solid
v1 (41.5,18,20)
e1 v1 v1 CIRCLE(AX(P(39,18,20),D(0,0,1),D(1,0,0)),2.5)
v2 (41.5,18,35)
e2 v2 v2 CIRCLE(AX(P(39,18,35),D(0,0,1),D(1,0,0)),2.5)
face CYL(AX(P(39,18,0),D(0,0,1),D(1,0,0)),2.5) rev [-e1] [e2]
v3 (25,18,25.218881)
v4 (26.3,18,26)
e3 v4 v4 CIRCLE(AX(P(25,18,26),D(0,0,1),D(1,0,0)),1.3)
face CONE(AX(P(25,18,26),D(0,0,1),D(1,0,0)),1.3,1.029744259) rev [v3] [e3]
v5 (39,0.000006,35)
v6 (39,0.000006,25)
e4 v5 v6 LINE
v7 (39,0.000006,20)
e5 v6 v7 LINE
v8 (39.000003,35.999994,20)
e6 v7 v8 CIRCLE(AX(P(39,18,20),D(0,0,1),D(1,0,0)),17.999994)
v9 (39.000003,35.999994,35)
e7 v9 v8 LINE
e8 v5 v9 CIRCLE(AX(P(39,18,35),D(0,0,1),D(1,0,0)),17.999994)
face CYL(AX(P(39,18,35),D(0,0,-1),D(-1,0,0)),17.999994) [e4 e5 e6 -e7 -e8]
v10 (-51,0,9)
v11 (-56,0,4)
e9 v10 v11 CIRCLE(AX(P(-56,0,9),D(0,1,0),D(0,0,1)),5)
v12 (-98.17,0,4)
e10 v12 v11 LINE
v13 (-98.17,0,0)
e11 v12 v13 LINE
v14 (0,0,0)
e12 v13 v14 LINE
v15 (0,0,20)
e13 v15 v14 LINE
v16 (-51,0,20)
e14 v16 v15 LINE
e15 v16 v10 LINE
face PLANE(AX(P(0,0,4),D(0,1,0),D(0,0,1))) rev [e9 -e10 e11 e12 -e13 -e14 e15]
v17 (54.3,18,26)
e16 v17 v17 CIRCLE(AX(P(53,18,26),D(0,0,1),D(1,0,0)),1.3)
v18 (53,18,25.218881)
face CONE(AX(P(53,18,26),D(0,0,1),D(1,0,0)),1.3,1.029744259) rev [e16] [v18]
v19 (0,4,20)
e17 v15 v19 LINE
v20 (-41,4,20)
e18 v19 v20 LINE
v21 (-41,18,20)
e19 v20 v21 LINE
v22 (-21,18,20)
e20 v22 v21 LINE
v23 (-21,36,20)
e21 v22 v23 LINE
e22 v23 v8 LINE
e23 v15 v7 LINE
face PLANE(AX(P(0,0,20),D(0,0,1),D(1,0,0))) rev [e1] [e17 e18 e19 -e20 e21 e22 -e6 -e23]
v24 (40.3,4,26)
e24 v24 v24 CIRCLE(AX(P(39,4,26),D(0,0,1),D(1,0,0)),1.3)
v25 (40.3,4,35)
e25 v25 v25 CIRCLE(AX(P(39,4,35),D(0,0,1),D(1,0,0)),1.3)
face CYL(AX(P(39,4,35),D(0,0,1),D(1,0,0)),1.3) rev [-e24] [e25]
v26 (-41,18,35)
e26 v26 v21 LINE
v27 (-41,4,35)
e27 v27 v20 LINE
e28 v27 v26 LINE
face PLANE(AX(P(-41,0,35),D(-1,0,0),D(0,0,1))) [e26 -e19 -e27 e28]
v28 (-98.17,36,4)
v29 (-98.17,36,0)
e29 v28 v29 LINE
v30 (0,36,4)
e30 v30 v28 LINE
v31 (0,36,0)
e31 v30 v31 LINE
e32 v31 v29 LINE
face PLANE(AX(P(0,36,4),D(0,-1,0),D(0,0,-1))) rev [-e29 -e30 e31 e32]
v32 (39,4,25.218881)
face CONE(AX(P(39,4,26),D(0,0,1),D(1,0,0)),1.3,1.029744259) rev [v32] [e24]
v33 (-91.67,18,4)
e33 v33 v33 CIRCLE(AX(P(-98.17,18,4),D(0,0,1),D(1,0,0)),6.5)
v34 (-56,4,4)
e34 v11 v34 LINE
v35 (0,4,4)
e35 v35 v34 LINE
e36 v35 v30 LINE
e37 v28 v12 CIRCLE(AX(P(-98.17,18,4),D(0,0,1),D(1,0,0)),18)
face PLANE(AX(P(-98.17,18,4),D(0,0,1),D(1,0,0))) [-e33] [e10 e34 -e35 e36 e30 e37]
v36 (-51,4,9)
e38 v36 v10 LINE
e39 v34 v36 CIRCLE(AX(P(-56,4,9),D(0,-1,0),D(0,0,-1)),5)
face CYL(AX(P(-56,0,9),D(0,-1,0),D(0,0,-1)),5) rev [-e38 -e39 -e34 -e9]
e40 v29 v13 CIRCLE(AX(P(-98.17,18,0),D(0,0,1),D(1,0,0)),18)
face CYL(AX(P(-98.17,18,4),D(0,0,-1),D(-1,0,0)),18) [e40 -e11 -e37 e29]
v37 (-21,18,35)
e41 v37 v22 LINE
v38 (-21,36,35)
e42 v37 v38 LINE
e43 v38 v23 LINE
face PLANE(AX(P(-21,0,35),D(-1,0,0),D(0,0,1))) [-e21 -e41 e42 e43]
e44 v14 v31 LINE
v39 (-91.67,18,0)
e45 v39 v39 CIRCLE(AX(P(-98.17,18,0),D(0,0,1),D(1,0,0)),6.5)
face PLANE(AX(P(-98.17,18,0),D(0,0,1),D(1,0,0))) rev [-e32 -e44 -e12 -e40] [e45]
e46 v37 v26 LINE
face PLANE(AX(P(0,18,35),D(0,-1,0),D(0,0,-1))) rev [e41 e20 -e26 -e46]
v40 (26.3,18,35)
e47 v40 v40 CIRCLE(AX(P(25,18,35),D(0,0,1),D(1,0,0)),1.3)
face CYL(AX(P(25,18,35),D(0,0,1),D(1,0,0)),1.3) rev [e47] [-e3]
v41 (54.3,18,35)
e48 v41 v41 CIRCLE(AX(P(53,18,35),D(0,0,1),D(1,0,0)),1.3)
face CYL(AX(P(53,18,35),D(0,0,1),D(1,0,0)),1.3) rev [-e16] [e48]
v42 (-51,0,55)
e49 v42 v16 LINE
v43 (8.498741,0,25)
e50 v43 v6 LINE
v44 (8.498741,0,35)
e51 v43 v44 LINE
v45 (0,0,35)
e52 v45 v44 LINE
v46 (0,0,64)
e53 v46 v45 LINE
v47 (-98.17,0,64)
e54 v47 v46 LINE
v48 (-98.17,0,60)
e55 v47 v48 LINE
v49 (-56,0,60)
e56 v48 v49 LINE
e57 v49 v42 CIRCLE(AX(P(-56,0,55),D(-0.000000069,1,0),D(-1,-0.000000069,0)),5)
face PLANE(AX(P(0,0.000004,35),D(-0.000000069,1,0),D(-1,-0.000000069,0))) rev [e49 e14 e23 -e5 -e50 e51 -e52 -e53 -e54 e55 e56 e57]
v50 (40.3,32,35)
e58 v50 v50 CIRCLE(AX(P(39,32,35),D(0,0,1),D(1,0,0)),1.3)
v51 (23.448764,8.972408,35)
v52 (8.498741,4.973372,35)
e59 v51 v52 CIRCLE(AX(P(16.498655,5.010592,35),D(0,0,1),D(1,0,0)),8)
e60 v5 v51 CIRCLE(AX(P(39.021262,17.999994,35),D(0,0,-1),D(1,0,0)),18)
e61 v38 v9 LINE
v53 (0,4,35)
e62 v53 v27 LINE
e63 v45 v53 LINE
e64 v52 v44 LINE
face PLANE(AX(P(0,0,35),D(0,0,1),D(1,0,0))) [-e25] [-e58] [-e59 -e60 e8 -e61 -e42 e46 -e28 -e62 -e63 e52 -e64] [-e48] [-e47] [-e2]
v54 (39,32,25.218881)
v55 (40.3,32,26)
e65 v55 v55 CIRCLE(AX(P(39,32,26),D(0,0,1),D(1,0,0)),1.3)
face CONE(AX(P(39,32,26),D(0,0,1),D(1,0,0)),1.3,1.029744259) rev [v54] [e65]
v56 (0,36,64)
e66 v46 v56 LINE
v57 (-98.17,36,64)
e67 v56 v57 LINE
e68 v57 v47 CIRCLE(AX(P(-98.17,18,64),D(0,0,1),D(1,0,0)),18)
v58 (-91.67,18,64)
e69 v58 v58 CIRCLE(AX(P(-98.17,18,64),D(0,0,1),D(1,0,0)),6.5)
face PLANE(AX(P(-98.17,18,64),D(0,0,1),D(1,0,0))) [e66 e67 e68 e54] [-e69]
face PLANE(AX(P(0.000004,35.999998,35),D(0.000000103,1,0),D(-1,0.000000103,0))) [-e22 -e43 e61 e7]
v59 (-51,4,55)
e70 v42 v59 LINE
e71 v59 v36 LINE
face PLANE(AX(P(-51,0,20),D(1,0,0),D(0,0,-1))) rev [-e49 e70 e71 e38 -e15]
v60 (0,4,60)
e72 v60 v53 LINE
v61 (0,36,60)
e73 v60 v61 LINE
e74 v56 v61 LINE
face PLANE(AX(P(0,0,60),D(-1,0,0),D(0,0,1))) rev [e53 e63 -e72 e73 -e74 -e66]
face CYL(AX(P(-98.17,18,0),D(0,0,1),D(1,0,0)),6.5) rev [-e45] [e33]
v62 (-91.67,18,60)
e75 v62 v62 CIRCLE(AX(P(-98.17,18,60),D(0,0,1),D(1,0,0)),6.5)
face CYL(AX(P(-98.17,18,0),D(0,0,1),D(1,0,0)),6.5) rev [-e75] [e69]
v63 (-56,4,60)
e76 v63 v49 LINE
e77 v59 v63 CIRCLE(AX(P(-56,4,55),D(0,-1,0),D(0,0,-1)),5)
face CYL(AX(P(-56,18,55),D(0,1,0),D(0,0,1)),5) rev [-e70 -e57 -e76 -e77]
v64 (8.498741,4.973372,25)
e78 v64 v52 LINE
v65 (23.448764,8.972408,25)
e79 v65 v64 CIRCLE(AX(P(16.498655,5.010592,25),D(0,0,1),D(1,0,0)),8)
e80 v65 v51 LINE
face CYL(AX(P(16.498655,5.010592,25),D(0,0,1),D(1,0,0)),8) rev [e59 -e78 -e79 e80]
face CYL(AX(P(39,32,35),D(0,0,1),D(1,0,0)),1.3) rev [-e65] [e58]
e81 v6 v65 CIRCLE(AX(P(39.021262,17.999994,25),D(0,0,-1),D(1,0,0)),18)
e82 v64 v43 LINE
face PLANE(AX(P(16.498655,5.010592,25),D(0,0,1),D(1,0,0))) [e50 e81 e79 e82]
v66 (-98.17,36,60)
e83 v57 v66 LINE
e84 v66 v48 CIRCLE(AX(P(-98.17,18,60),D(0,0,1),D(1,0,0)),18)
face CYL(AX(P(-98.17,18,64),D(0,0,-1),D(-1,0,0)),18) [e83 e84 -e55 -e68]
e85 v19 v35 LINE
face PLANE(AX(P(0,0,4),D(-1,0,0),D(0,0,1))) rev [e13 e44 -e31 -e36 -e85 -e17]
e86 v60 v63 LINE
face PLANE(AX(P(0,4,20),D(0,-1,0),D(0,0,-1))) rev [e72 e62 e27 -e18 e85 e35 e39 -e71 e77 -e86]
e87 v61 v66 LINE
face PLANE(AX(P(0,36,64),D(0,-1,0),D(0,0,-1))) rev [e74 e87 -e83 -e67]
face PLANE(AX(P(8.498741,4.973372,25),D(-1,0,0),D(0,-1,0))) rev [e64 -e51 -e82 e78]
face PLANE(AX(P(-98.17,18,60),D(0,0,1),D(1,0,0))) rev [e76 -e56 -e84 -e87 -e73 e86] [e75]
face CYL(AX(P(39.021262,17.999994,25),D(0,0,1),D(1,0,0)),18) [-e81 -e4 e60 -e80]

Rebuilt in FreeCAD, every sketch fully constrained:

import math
import FreeCAD as App
import Part
import Sketcher

V = App.Vector
Q = App.Units.Quantity


def edges_at(feature, points):
    """Names of the edges that pass closest to the given points."""
    edges = feature.Shape.Edges
    near = lambda p: min(range(len(edges)), key=lambda i: edges[i].distToShape(Part.Vertex(*p))[0])
    return sorted({f"Edge{near(p) + 1}" for p in points})


def add_polygon(sketch, points):
    """Adds a closed chain of lines whose ends are joined by coincident constraints."""
    first, n = sketch.GeometryCount, len(points)
    for a, b in zip(points, points[1:] + points[:1]):
        sketch.addGeometry(Part.LineSegment(App.Vector(*a, 0), App.Vector(*b, 0)), False)
    for i in range(n):
        sketch.addConstraint(Sketcher.Constraint("Coincident", first + i, 2, first + (i + 1) % n, 1))

doc = App.newDocument("Part")
body = doc.addObject("PartDesign::Body", "Body")

sketch1 = doc.addObject("Sketcher::SketchObject", "Sketch")
body.addObject(sketch1)
sketch1.AttachmentSupport = (doc.XY_Plane, [""])
sketch1.MapMode = "FlatFace"
sketch1.addGeometry(Part.LineSegment(V(-98.17, 0, 0), V(0, 0, 0)), False)
sketch1.addGeometry(Part.LineSegment(V(0, 0, 0), V(0, 36, 0)), False)
sketch1.addGeometry(Part.LineSegment(V(0, 36, 0), V(-98.17, 36, 0)), False)
sketch1.addGeometry(Part.ArcOfCircle(Part.Circle(V(-98.17, 18, 0), V(0, 0, 1), 18), math.radians(90), math.radians(270)), False)
sketch1.addConstraint(Sketcher.Constraint("Coincident", 0, 2, 1, 1))
sketch1.addConstraint(Sketcher.Constraint("Coincident", 1, 2, 2, 1))
sketch1.addConstraint(Sketcher.Constraint("Tangent", 2, 2, 3, 1))
sketch1.addConstraint(Sketcher.Constraint("Tangent", 3, 2, 0, 1))
sketch1.addConstraint(Sketcher.Constraint("Horizontal", 0))
sketch1.addConstraint(Sketcher.Constraint("Vertical", 1))
sketch1.addConstraint(Sketcher.Constraint("Horizontal", 2))
sketch1.addConstraint(Sketcher.Constraint("Coincident", 0, 2, -1, 1))
sketch1.addConstraint(Sketcher.Constraint("Radius", 3, Q("18 mm")))
sketch1.addConstraint(Sketcher.Constraint("DistanceX", 0, 1, 0, 2, Q("98.17 mm")))
pad1 = doc.addObject("PartDesign::Pad", "Pad")
body.addObject(pad1)
pad1.Profile = sketch1
pad1.Length = 4

sketch2 = doc.addObject("Sketcher::SketchObject", "Sketch001")
body.addObject(sketch2)
sketch2.AttachmentSupport = (doc.XY_Plane, [""])
sketch2.MapMode = "FlatFace"
sketch2.AttachmentOffset = App.Placement(V(0, 0, 4), App.Rotation())
add_polygon(sketch2, [(-51, 4), (-51, 0), (0, 0), (0, 4)])
sketch2.addConstraint(Sketcher.Constraint("Vertical", 0))
sketch2.addConstraint(Sketcher.Constraint("Horizontal", 1))
sketch2.addConstraint(Sketcher.Constraint("Vertical", 2))
sketch2.addConstraint(Sketcher.Constraint("Horizontal", 3))
sketch2.addConstraint(Sketcher.Constraint("Coincident", 1, 2, -1, 1))
sketch2.addConstraint(Sketcher.Constraint("DistanceX", 1, 1, 1, 2, Q("51 mm")))
sketch2.addConstraint(Sketcher.Constraint("DistanceY", 0, 2, 0, 1, Q("4 mm")))
pad2 = doc.addObject("PartDesign::Pad", "Pad001")
body.addObject(pad2)
pad2.Profile = sketch2
pad2.Length = 16

sketch3 = doc.addObject("Sketcher::SketchObject", "Sketch002")
body.addObject(sketch3)
sketch3.AttachmentSupport = (doc.XY_Plane, [""])
sketch3.MapMode = "FlatFace"
sketch3.AttachmentOffset = App.Placement(V(0, 0, 20), App.Rotation())
sketch3.addGeometry(Part.LineSegment(V(-51, 4, 0), V(-51, 0, 0)), False)
sketch3.addGeometry(Part.LineSegment(V(-51, 0, 0), V(39, 0.000006, 0)), False)
sketch3.addGeometry(Part.ArcOfCircle(Part.Circle(V(39, 18, 0), V(0, 0, 1), 17.999994), math.radians(-90), math.radians(89.999991)), False)
sketch3.addGeometry(Part.LineSegment(V(39.000003, 35.999994, 0), V(-21, 36, 0)), False)
sketch3.addGeometry(Part.LineSegment(V(-21, 36, 0), V(-21, 18, 0)), False)
sketch3.addGeometry(Part.LineSegment(V(-21, 18, 0), V(-41, 18, 0)), False)
sketch3.addGeometry(Part.LineSegment(V(-41, 18, 0), V(-41, 4, 0)), False)
sketch3.addGeometry(Part.LineSegment(V(-41, 4, 0), V(-51, 4, 0)), False)
sketch3.addConstraint(Sketcher.Constraint("Coincident", 0, 2, 1, 1))
sketch3.addConstraint(Sketcher.Constraint("Tangent", 1, 2, 2, 1))
sketch3.addConstraint(Sketcher.Constraint("Tangent", 2, 2, 3, 1))
sketch3.addConstraint(Sketcher.Constraint("Coincident", 3, 2, 4, 1))
sketch3.addConstraint(Sketcher.Constraint("Coincident", 4, 2, 5, 1))
sketch3.addConstraint(Sketcher.Constraint("Coincident", 5, 2, 6, 1))
sketch3.addConstraint(Sketcher.Constraint("Coincident", 6, 2, 7, 1))
sketch3.addConstraint(Sketcher.Constraint("Coincident", 7, 2, 0, 1))
sketch3.addConstraint(Sketcher.Constraint("Vertical", 0))
sketch3.addConstraint(Sketcher.Constraint("Vertical", 4))
sketch3.addConstraint(Sketcher.Constraint("Horizontal", 5))
sketch3.addConstraint(Sketcher.Constraint("Vertical", 6))
sketch3.addConstraint(Sketcher.Constraint("Horizontal", 7))
sketch3.addConstraint(Sketcher.Constraint("PointOnObject", 0, 2, -1))
sketch3.addConstraint(Sketcher.Constraint("Parallel", 1, 3))
sketch3.addConstraint(Sketcher.Constraint("Horizontal", 2, 3, 4, 2))
sketch3.addConstraint(Sketcher.Constraint("Vertical", 2, 3, 1, 2))
sketch3.addConstraint(Sketcher.Constraint("DistanceX", 5, 2, 5, 1, Q("20 mm")))
sketch3.addConstraint(Sketcher.Constraint("DistanceX", 7, 2, 7, 1, Q("10 mm")))
sketch3.addConstraint(Sketcher.Constraint("DistanceY", 0, 2, 0, 1, Q("4 mm")))
sketch3.addConstraint(Sketcher.Constraint("DistanceY", 4, 2, 4, 1, Q("18 mm")))
sketch3.addConstraint(Sketcher.Constraint("Distance", 1, Q("90 mm")))
sketch3.addConstraint(Sketcher.Constraint("DistanceX", -1, 1, 2, 3, Q("39 mm")))
pad3 = doc.addObject("PartDesign::Pad", "Pad002")
body.addObject(pad3)
pad3.Profile = sketch3
pad3.Length = 15

sketch4 = doc.addObject("Sketcher::SketchObject", "Sketch003")
body.addObject(sketch4)
sketch4.AttachmentSupport = (doc.XY_Plane, [""])
sketch4.MapMode = "FlatFace"
sketch4.AttachmentOffset = App.Placement(V(0, 0, 35), App.Rotation())
add_polygon(sketch4, [(-51, 4), (-51, 0), (0, 0), (0, 4)])
sketch4.addConstraint(Sketcher.Constraint("Vertical", 0))
sketch4.addConstraint(Sketcher.Constraint("Horizontal", 1))
sketch4.addConstraint(Sketcher.Constraint("Vertical", 2))
sketch4.addConstraint(Sketcher.Constraint("Horizontal", 3))
sketch4.addConstraint(Sketcher.Constraint("Coincident", 1, 2, -1, 1))
sketch4.addConstraint(Sketcher.Constraint("DistanceX", 1, 1, 1, 2, Q("51 mm")))
sketch4.addConstraint(Sketcher.Constraint("DistanceY", 0, 2, 0, 1, Q("4 mm")))
pad4 = doc.addObject("PartDesign::Pad", "Pad003")
body.addObject(pad4)
pad4.Profile = sketch4
pad4.Length = 25

sketch5 = doc.addObject("Sketcher::SketchObject", "Sketch004")
body.addObject(sketch5)
sketch5.AttachmentSupport = (doc.XY_Plane, [""])
sketch5.MapMode = "FlatFace"
sketch5.AttachmentOffset = App.Placement(V(0, 0, 60), App.Rotation())
sketch5.addGeometry(Part.LineSegment(V(-98.17, 0, 0), V(0, 0, 0)), False)
sketch5.addGeometry(Part.LineSegment(V(0, 0, 0), V(0, 36, 0)), False)
sketch5.addGeometry(Part.LineSegment(V(0, 36, 0), V(-98.17, 36, 0)), False)
sketch5.addGeometry(Part.ArcOfCircle(Part.Circle(V(-98.17, 18, 0), V(0, 0, 1), 18), math.radians(90), math.radians(270)), False)
sketch5.addConstraint(Sketcher.Constraint("Coincident", 0, 2, 1, 1))
sketch5.addConstraint(Sketcher.Constraint("Coincident", 1, 2, 2, 1))
sketch5.addConstraint(Sketcher.Constraint("Tangent", 2, 2, 3, 1))
sketch5.addConstraint(Sketcher.Constraint("Tangent", 3, 2, 0, 1))
sketch5.addConstraint(Sketcher.Constraint("Horizontal", 0))
sketch5.addConstraint(Sketcher.Constraint("Vertical", 1))
sketch5.addConstraint(Sketcher.Constraint("Horizontal", 2))
sketch5.addConstraint(Sketcher.Constraint("Coincident", 0, 2, -1, 1))
sketch5.addConstraint(Sketcher.Constraint("Radius", 3, Q("18 mm")))
sketch5.addConstraint(Sketcher.Constraint("DistanceX", 0, 1, 0, 2, Q("98.17 mm")))
pad5 = doc.addObject("PartDesign::Pad", "Pad004")
body.addObject(pad5)
pad5.Profile = sketch5
pad5.Length = 4

sketch6 = doc.addObject("Sketcher::SketchObject", "Sketch005")
body.addObject(sketch6)
sketch6.AttachmentSupport = (doc.XY_Plane, [""])
sketch6.MapMode = "FlatFace"
sketch6.AttachmentOffset = App.Placement(V(0, 0, 64), App.Rotation())
sketch6.addGeometry(Part.Circle(V(-98.17, 18, 0), V(0, 0, 1), 6.5), False)
sketch6.addConstraint(Sketcher.Constraint("Diameter", 0, Q("13 mm")))
sketch6.addConstraint(Sketcher.Constraint("DistanceY", -1, 1, 0, 3, Q("18 mm")))
sketch6.addConstraint(Sketcher.Constraint("DistanceX", 0, 3, -1, 1, Q("98.17 mm")))
pocket1 = doc.addObject("PartDesign::Pocket", "Pocket")
body.addObject(pocket1)
pocket1.Profile = sketch6
pocket1.Type = "ThroughAll"

sketch7 = doc.addObject("Sketcher::SketchObject", "Sketch006")
body.addObject(sketch7)
sketch7.AttachmentSupport = (doc.XY_Plane, [""])
sketch7.MapMode = "FlatFace"
sketch7.AttachmentOffset = App.Placement(V(0, 0, 35), App.Rotation())
sketch7.addGeometry(Part.Circle(V(39, 18, 0), V(0, 0, 1), 2.5), False)
sketch7.addConstraint(Sketcher.Constraint("Diameter", 0, Q("5 mm")))
sketch7.addConstraint(Sketcher.Constraint("DistanceX", -1, 1, 0, 3, Q("39 mm")))
sketch7.addConstraint(Sketcher.Constraint("DistanceY", -1, 1, 0, 3, Q("18 mm")))
pocket2 = doc.addObject("PartDesign::Pocket", "Pocket001")
body.addObject(pocket2)
pocket2.Profile = sketch7
pocket2.Type = "ThroughAll"

sketch8 = doc.addObject("Sketcher::SketchObject", "Sketch007")
body.addObject(sketch8)
sketch8.AttachmentSupport = (doc.XY_Plane, [""])
sketch8.MapMode = "FlatFace"
sketch8.AttachmentOffset = App.Placement(V(0, 0, 35), App.Rotation())
sketch8.addGeometry(Part.LineSegment(V(8.498741, 4.973372, 0), V(8.498741, 0, 0)), False)
sketch8.addGeometry(Part.LineSegment(V(8.498741, 0, 0), V(39, 0.000006, 0)), False)
sketch8.addGeometry(Part.ArcOfCircle(Part.Circle(V(39.021262, 17.999994, 0), V(0, 0, 1), 18), math.radians(-149.898558), math.radians(-90.067679)), False)
sketch8.addGeometry(Part.ArcOfCircle(Part.Circle(V(16.498655, 5.010592, 0), V(0, 0, 1), 8), math.radians(29.68472), math.radians(180.266571)), False)
sketch8.addConstraint(Sketcher.Constraint("Coincident", 0, 2, 1, 1))
sketch8.addConstraint(Sketcher.Constraint("Coincident", 1, 2, 2, 2))
sketch8.addConstraint(Sketcher.Constraint("Coincident", 2, 1, 3, 1))
sketch8.addConstraint(Sketcher.Constraint("Coincident", 3, 2, 0, 1))
sketch8.addConstraint(Sketcher.Constraint("Vertical", 0))
sketch8.addConstraint(Sketcher.Constraint("PointOnObject", 0, 2, -1))
sketch8.addConstraint(Sketcher.Constraint("Radius", 2, Q("18 mm")))
sketch8.addConstraint(Sketcher.Constraint("Radius", 3, Q("8 mm")))
sketch8.addConstraint(Sketcher.Constraint("Angle", 1, Q("0.000012 deg")))
sketch8.addConstraint(Sketcher.Constraint("DistanceX", -1, 1, 1, 2, Q("39 mm")))
sketch8.addConstraint(Sketcher.Constraint("DistanceY", 3, 3, 2, 3, Q("12.989401 mm")))
sketch8.addConstraint(Sketcher.Constraint("DistanceX", 2, 1, 2, 3, Q("15.572498 mm")))
sketch8.addConstraint(Sketcher.Constraint("Distance", 1, Q("30.501259 mm")))
sketch8.addConstraint(Sketcher.Constraint("DistanceY", 0, 2, 0, 1, Q("4.973372 mm")))
pocket3 = doc.addObject("PartDesign::Pocket", "Pocket002")
body.addObject(pocket3)
pocket3.Profile = sketch8
pocket3.Length = 10

sketch9 = doc.addObject("Sketcher::SketchObject", "Sketch008")
body.addObject(sketch9)
sketch9.AttachmentSupport = (doc.XY_Plane, [""])
sketch9.MapMode = "FlatFace"
sketch9.AttachmentOffset = App.Placement(V(0, 0, 35), App.Rotation())
sketch9.addGeometry(Part.Circle(V(39, 32, 0), V(0, 0, 1), 1.3), False)
sketch9.addGeometry(Part.Circle(V(25, 18, 0), V(0, 0, 1), 1.3), False)
sketch9.addGeometry(Part.Circle(V(39, 4, 0), V(0, 0, 1), 1.3), False)
sketch9.addGeometry(Part.Circle(V(53, 18, 0), V(0, 0, 1), 1.3), False)
sketch9.addConstraint(Sketcher.Constraint("Equal", 0, 1))
sketch9.addConstraint(Sketcher.Constraint("Equal", 1, 2))
sketch9.addConstraint(Sketcher.Constraint("Equal", 2, 3))
sketch9.addConstraint(Sketcher.Constraint("Horizontal", 1, 3, 3, 3))
sketch9.addConstraint(Sketcher.Constraint("Vertical", 0, 3, 2, 3))
sketch9.addConstraint(Sketcher.Constraint("Diameter", 0, Q("2.6 mm")))
sketch9.addConstraint(Sketcher.Constraint("DistanceX", -1, 1, 0, 3, Q("39 mm")))
sketch9.addConstraint(Sketcher.Constraint("DistanceY", -1, 1, 0, 3, Q("32 mm")))
sketch9.addConstraint(Sketcher.Constraint("DistanceX", -1, 1, 1, 3, Q("25 mm")))
sketch9.addConstraint(Sketcher.Constraint("DistanceY", -1, 1, 1, 3, Q("18 mm")))
sketch9.addConstraint(Sketcher.Constraint("DistanceY", -1, 1, 2, 3, Q("4 mm")))
sketch9.addConstraint(Sketcher.Constraint("DistanceX", -1, 1, 3, 3, Q("53 mm")))
doc.recompute()
hole = doc.addObject("PartDesign::Hole", "Hole")
body.addObject(hole)
hole.Profile = sketch9
hole.ThreadType = "None"
hole.Diameter = 2.6
hole.DepthType = "Dimension"
hole.Depth = 9
hole.DrillPoint = "Angled"
hole.DrillPointAngle = 118
doc.recompute()

fillet = doc.addObject("PartDesign::Fillet", "Fillet")
body.addObject(fillet)
fillet.Base = (hole, edges_at(hole, [(-51, 2, 4), (-51, 2, 60)]))
fillet.Radius = 5

doc.recompute()
